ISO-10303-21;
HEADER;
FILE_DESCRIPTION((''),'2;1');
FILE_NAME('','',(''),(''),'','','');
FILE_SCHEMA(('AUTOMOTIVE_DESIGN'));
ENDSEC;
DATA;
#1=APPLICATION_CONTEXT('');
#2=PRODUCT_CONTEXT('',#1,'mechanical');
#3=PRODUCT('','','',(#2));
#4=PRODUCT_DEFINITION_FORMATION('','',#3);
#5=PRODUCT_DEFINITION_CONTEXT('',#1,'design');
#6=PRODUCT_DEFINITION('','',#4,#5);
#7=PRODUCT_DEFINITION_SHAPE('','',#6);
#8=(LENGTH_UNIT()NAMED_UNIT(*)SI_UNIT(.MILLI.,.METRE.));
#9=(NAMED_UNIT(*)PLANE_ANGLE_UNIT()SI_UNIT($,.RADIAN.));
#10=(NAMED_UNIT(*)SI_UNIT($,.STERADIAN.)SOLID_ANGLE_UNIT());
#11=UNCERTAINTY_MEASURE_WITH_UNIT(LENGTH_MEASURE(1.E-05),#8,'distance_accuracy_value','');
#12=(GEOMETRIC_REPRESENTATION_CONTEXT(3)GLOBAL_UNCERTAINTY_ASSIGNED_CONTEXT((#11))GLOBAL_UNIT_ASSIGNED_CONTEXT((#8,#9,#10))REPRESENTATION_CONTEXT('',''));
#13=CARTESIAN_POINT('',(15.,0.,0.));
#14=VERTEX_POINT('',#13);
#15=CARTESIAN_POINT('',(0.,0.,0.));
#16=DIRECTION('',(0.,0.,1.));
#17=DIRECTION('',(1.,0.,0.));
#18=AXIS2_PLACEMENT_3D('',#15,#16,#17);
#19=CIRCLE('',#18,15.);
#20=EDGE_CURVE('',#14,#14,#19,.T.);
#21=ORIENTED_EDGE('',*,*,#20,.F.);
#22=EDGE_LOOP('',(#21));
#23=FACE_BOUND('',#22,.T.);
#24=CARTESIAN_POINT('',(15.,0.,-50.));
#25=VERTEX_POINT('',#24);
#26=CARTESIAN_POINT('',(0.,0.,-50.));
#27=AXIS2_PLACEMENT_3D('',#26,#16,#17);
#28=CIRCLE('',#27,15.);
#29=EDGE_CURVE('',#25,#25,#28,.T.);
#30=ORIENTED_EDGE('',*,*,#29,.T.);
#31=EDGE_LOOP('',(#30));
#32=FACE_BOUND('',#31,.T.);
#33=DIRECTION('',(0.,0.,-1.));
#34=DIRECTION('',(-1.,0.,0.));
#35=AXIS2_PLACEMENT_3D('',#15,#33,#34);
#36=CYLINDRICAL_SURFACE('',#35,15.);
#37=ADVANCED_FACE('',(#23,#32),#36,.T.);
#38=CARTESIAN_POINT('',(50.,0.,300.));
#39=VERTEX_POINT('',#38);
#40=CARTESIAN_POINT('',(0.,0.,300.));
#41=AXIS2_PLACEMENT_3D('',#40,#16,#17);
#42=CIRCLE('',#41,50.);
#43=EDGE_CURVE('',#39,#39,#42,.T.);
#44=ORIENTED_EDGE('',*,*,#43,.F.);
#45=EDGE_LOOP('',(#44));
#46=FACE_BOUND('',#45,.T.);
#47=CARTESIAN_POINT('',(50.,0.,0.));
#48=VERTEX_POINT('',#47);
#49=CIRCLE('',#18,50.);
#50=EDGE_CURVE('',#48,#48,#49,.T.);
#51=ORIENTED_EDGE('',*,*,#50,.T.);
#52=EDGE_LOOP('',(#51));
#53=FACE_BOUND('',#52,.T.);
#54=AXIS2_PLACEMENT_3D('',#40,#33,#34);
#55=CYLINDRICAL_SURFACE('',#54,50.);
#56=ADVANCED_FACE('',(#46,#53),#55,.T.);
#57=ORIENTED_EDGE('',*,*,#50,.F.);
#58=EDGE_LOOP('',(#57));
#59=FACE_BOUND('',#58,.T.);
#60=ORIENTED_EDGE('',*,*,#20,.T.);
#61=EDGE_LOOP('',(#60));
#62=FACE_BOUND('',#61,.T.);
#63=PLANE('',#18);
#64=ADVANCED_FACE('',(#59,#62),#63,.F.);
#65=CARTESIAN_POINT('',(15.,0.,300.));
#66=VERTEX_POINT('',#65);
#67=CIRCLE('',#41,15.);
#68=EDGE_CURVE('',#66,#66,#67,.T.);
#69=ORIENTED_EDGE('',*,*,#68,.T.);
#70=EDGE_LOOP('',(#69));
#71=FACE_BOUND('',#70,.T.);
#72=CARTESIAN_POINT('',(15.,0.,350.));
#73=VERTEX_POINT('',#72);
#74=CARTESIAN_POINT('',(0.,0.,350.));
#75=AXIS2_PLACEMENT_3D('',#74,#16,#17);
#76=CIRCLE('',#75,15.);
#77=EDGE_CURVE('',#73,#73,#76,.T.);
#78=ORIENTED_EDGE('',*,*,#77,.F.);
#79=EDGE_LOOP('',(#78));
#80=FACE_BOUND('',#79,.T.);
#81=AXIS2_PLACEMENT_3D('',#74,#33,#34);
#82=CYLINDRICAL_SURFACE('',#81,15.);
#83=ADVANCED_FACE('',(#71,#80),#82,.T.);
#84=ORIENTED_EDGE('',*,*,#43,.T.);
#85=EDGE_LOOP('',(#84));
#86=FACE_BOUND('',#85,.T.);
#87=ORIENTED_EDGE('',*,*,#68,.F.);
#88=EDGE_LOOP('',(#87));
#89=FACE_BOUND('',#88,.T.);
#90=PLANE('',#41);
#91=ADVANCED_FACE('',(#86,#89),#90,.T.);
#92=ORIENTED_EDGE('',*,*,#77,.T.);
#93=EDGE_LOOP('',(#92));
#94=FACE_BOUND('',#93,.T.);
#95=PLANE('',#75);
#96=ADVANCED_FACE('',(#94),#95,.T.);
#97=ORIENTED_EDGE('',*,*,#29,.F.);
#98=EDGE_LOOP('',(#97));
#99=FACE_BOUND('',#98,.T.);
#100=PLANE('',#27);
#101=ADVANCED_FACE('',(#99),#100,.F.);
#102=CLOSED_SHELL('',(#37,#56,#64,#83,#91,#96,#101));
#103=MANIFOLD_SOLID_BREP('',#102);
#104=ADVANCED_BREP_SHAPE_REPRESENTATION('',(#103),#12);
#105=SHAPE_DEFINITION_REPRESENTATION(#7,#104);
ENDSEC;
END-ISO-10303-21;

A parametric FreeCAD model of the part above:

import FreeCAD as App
import Part
import Sketcher
from FreeCAD import Vector
Q = App.Units.Quantity

doc = App.newDocument("Part")
body = doc.addObject("PartDesign::Body", "Body")

# Sketch on XY plane
sketch1 = doc.addObject("Sketcher::SketchObject", "Sketch")
body.addObject(sketch1)
sketch1.AttachmentSupport = (doc.XY_Plane, [""])
sketch1.MapMode = "FlatFace"
sketch1.addGeometry(Part.Circle(Vector(0, 0, 0), Vector(0, 0, 1), 50), False)
sketch1.addConstraint([
    Sketcher.Constraint("Coincident", 0, 3, -1, 1),
    Sketcher.Constraint("Diameter", 0, Q("100 mm")),
])
pad1 = doc.addObject("PartDesign::Pad", "Pad")
body.addObject(pad1)
pad1.Profile = sketch1
pad1.Length = 300

# Sketch on XY plane
sketch2 = doc.addObject("Sketcher::SketchObject", "Sketch001")
body.addObject(sketch2)
sketch2.AttachmentSupport = (doc.XY_Plane, [""])
sketch2.MapMode = "FlatFace"
sketch2.AttachmentOffset = App.Placement(Vector(0, 0, 300), App.Rotation())
sketch2.addGeometry(Part.Circle(Vector(0, 0, 0), Vector(0, 0, 1), 15), False)
sketch2.addConstraint([
    Sketcher.Constraint("Coincident", 0, 3, -1, 1),
    Sketcher.Constraint("Diameter", 0, Q("30 mm")),
])
pad2 = doc.addObject("PartDesign::Pad", "Pad001")
body.addObject(pad2)
pad2.Profile = sketch2
pad2.Length = 50
doc.recompute()

linearpattern = doc.addObject("PartDesign::LinearPattern", "LinearPattern")
body.addObject(linearpattern)
linearpattern.Originals = [pad2]
linearpattern.Direction = (doc.Z_Axis, [""])
linearpattern.Mode = "offset"
linearpattern.Offset = 350
linearpattern.Occurrences = 2
linearpattern.Reversed = True
body.Tip = linearpattern

doc.recompute()
